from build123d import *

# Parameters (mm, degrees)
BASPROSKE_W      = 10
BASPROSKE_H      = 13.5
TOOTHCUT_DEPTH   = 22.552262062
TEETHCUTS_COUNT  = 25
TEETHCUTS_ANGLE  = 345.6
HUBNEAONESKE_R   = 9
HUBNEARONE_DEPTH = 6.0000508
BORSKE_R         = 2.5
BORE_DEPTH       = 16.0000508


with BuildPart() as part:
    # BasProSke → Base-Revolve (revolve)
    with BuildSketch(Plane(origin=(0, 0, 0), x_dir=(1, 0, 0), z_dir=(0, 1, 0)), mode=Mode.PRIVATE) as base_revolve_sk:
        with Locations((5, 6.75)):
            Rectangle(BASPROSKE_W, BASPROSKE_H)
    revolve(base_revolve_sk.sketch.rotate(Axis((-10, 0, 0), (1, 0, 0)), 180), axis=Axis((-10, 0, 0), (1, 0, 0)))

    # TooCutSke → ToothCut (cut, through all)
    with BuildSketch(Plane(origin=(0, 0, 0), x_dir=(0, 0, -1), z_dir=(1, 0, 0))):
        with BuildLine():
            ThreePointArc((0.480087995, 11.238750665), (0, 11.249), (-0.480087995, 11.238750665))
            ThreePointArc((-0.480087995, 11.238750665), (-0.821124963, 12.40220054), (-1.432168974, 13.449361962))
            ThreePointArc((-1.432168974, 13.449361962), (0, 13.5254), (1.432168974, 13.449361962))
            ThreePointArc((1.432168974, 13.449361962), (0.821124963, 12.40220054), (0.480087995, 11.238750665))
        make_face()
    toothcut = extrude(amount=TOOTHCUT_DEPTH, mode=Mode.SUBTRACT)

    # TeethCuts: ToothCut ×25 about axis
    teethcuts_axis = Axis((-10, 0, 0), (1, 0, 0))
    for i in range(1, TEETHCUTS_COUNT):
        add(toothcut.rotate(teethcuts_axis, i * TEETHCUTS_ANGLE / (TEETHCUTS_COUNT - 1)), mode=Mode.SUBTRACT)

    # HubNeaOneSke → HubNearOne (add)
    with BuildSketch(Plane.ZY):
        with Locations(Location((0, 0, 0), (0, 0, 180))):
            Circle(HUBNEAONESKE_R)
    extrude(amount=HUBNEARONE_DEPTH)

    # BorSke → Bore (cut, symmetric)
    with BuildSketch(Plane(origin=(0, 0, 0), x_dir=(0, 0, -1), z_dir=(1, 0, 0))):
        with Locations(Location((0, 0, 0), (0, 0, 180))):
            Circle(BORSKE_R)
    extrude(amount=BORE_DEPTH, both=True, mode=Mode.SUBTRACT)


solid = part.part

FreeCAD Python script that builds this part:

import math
import FreeCAD as App
import Part
import Sketcher
from FreeCAD import Vector
Q = App.Units.Quantity

doc = App.newDocument("Part")
body = doc.addObject("PartDesign::Body", "Body")

# Sketch on XZ plane
sketch1 = body.newObject("Sketcher::SketchObject", "Sketch")
sketch1.AttachmentSupport = (doc.getObject("XZ_Plane"), [""])
sketch1.MapMode = "FlatFace"
sketch1.addGeometry([
    Part.LineSegment(Vector(0, -14, 0), Vector(0, 0, 0)),
    Part.LineSegment(Vector(0, 0, 0), Vector(10, 0, 0)),
    Part.LineSegment(Vector(10, 0, 0), Vector(10, -14, 0)),
    Part.LineSegment(Vector(10, -14, 0), Vector(0, -14, 0)),
], False)
sketch1.addConstraint([
    Sketcher.Constraint("Coincident", 0, 2, 1, 1),
    Sketcher.Constraint("Coincident", 1, 2, 2, 1),
    Sketcher.Constraint("Coincident", 2, 2, 3, 1),
    Sketcher.Constraint("Coincident", 3, 2, 0, 1),
    Sketcher.Constraint("Vertical", 0),
    Sketcher.Constraint("Horizontal", 1),
    Sketcher.Constraint("Vertical", 2),
    Sketcher.Constraint("Horizontal", 3),
    Sketcher.Constraint("Coincident", 0, 2, -1, 1),
    Sketcher.Constraint("DistanceX", 1, 1, 1, 2, Q("10 mm")),
    Sketcher.Constraint("DistanceY", 0, 1, 0, 2, Q("13.5 mm")),
])
revolution = body.newObject("PartDesign::Revolution", "Revolution")
revolution.Profile = sketch1
revolution.ReferenceAxis = (sketch1, ["H_Axis"])
revolution.Angle = 360

# Sketch on YZ plane
sketch2 = body.newObject("Sketcher::SketchObject", "Sketch001")
sketch2.AttachmentSupport = (doc.getObject("YZ_Plane"), [""])
sketch2.MapMode = "FlatFace"
sketch2.addGeometry([
    Part.ArcOfCircle(Part.Circle(Vector(0, 0, 0), Vector(0, 0, 1), 11.2), math.radians(-2.45), math.radians(2.45)),
    Part.ArcOfCircle(Part.Circle(Vector(10.4, -5.4, 0), Vector(0, 0, 1), 5), math.radians(53), math.radians(81)),
    Part.ArcOfCircle(Part.Circle(Vector(0, 0, 0), Vector(0, 0, 1), 13.5), math.radians(-6.08), math.radians(6.08)),
    Part.ArcOfCircle(Part.Circle(Vector(10.4, 5.4, 0), Vector(0, 0, 1), 5), math.radians(-81), math.radians(-53)),
], False)
sketch2.addConstraint([
    Sketcher.Constraint("Coincident", 0, 1, 1, 2),
    Sketcher.Constraint("Coincident", 1, 1, 2, 1),
    Sketcher.Constraint("Coincident", 2, 2, 3, 2),
    Sketcher.Constraint("Coincident", 3, 1, 0, 2),
    Sketcher.Constraint("Coincident", 0, 3, -1, 1),
    Sketcher.Constraint("Coincident", 2, 3, -1, 1),
    Sketcher.Constraint("Equal", 1, 3),
    Sketcher.Constraint("Symmetric", 1, 3, 3, 3, -1),
    Sketcher.Constraint("Radius", 1, Q("5 mm")),
    Sketcher.Constraint("Radius", 0, Q("11.249 mm")),
    Sketcher.Constraint("Radius", 2, Q("13.5254 mm")),
    Sketcher.Constraint("DistanceX", -1, 1, 1, 3, Q("10.424401 mm")),
    Sketcher.Constraint("DistanceX", -1, 1, 0, 1, Q("11.238751 mm")),
])
pocket1 = body.newObject("PartDesign::Pocket", "Pocket")
pocket1.Profile = sketch2
pocket1.Type = "ThroughAll"
pocket1.Reversed = True
doc.recompute()

polarpattern = body.newObject("PartDesign::PolarPattern", "PolarPattern")
polarpattern.Originals = [pocket1]
polarpattern.Axis = (doc.getObject("X_Axis"), [""])
polarpattern.Angle = 360
polarpattern.Occurrences = 25
body.Tip = polarpattern

# Sketch on YZ plane
sketch3 = body.newObject("Sketcher::SketchObject", "Sketch002")
sketch3.AttachmentSupport = (doc.getObject("YZ_Plane"), [""])
sketch3.MapMode = "FlatFace"
sketch3.addGeometry(Part.Circle(Vector(0, 0, 0), Vector(0, 0, 1), 9), False)
sketch3.addConstraint([
    Sketcher.Constraint("Coincident", 0, 3, -1, 1),
    Sketcher.Constraint("Diameter", 0, Q("18 mm")),
])
pad1 = body.newObject("PartDesign::Pad", "Pad")
pad1.Profile = sketch3
pad1.Length = 6.000051
pad1.Reversed = True

# Sketch on YZ plane
sketch4 = body.newObject("Sketcher::SketchObject", "Sketch003")
sketch4.AttachmentSupport = (doc.getObject("YZ_Plane"), [""])
sketch4.MapMode = "FlatFace"
sketch4.addGeometry(Part.Circle(Vector(0, 0, 0), Vector(0, 0, 1), 2.5), False)
sketch4.addConstraint([
    Sketcher.Constraint("Coincident", 0, 3, -1, 1),
    Sketcher.Constraint("Diameter", 0, Q("5 mm")),
])
pocket2 = body.newObject("PartDesign::Pocket", "Pocket001")
pocket2.Profile = sketch4
pocket2.Length = 32.000102
pocket2.Midplane = True

doc.recompute()
